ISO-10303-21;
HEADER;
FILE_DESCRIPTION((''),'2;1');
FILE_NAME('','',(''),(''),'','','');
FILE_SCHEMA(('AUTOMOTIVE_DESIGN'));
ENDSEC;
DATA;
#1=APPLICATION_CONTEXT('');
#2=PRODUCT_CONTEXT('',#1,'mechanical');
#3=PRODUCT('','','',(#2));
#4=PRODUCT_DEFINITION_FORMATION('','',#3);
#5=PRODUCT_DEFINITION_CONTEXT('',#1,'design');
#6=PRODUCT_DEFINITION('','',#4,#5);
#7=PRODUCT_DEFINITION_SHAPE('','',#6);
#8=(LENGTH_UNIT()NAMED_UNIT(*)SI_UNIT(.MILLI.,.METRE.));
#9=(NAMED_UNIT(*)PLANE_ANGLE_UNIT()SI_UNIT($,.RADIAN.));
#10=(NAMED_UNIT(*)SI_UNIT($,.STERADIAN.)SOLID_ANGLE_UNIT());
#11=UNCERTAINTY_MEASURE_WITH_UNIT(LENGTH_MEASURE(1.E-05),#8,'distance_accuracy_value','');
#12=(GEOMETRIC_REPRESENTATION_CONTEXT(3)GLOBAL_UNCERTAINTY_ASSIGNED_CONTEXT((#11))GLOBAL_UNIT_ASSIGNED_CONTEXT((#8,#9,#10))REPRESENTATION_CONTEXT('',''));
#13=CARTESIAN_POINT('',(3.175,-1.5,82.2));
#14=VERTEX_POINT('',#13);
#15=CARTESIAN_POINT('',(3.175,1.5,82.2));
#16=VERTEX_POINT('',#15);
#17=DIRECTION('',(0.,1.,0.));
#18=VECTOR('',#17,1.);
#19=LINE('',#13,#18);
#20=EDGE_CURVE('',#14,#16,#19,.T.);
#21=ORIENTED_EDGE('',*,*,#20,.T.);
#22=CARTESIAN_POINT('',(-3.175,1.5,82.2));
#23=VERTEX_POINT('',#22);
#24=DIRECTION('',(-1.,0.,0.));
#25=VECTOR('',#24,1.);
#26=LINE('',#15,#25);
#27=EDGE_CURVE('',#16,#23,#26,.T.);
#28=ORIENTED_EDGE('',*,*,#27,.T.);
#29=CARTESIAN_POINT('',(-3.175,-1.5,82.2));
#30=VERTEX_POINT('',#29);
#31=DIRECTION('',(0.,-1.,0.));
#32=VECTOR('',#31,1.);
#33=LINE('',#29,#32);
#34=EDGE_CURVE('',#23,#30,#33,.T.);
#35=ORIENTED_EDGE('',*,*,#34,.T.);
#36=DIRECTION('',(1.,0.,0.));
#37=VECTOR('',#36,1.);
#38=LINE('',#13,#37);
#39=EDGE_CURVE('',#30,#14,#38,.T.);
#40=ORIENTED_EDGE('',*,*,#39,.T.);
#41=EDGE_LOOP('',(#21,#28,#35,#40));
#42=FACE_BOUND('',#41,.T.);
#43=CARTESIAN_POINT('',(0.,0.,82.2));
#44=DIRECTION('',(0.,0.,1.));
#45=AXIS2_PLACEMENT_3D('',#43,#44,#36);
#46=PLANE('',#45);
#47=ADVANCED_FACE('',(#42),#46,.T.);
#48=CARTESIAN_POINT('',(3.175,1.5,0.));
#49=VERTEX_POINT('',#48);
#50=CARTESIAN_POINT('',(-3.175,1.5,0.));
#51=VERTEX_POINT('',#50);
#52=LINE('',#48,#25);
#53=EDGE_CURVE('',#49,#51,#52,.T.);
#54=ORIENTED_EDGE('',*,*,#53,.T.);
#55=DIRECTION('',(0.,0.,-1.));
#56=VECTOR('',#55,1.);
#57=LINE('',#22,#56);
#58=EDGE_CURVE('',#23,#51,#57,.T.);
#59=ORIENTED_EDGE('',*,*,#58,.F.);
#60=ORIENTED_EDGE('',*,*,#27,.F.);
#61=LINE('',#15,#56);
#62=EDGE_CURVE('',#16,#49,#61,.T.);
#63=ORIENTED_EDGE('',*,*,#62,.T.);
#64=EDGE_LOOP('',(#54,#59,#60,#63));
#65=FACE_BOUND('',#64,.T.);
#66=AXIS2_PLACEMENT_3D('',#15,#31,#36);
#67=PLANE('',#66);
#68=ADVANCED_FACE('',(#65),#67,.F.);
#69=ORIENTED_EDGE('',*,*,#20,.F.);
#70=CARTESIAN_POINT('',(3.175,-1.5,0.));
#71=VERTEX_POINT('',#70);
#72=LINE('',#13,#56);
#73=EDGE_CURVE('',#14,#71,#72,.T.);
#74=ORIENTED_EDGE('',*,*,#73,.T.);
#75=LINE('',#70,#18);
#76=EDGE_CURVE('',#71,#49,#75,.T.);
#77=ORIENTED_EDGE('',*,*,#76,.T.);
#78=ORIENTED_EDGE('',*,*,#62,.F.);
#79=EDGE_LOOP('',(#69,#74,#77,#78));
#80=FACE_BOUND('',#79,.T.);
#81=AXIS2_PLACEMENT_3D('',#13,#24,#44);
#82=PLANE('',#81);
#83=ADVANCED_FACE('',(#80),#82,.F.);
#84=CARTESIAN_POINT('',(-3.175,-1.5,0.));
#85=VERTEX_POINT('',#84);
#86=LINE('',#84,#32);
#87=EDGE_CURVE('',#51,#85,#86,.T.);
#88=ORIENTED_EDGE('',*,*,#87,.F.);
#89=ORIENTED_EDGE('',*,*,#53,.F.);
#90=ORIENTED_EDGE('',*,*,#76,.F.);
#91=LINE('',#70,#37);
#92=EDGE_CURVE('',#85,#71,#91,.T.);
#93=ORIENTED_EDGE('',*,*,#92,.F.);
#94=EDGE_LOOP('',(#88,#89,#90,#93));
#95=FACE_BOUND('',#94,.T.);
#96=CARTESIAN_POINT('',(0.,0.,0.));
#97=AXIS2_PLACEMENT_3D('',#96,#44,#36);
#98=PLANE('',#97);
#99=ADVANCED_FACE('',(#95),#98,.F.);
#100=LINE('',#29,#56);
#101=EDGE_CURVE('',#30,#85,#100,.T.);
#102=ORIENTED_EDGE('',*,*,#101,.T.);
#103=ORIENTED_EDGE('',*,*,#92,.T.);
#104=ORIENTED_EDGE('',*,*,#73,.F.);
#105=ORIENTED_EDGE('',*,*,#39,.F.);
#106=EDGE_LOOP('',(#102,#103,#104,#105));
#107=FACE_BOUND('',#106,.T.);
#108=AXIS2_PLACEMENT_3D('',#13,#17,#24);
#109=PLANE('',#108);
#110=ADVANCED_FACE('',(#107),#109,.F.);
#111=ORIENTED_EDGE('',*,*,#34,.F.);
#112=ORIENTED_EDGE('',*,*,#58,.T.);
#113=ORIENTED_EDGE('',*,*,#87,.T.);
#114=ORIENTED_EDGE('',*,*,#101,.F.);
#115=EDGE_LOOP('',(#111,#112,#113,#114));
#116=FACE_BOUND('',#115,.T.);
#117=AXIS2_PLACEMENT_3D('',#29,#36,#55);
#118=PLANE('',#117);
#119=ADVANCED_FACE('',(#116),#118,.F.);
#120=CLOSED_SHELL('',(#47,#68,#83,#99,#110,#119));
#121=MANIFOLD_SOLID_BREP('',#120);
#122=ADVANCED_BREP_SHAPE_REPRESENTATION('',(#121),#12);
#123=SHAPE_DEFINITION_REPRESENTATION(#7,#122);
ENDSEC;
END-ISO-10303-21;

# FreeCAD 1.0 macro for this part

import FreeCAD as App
import Part
import Sketcher
from FreeCAD import Vector

doc = App.newDocument("Part")
params = doc.addObject("Spreadsheet::Sheet", "Params")
for row, (alias, value) in enumerate([
    ("sketch1_height", "3 mm"),
    ("sketch1_width", "6.35 mm"),
    ("pad1_length", "82.2 mm"),
], start=1):
    params.set(f"A{row}", alias)
    params.set(f"B{row}", "=" + value)
    params.setAlias(f"B{row}", alias)

body = doc.addObject("PartDesign::Body", "Body")

# Sketch on XY plane
sketch1 = doc.addObject("Sketcher::SketchObject", "Sketch")
body.addObject(sketch1)
sketch1.AttachmentSupport = (doc.XY_Plane, [""])
sketch1.MapMode = "FlatFace"
sketch1.addGeometry(Part.LineSegment(Vector(-3.2, 1.5, 0), Vector(-3.2, -1.5, 0)), False)
sketch1.addGeometry(Part.LineSegment(Vector(-3.2, -1.5, 0), Vector(3.2, -1.5, 0)), False)
sketch1.addGeometry(Part.LineSegment(Vector(3.2, -1.5, 0), Vector(3.2, 1.5, 0)), False)
sketch1.addGeometry(Part.LineSegment(Vector(3.2, 1.5, 0), Vector(-3.2, 1.5, 0)), False)
sketch1.addConstraint(Sketcher.Constraint("Coincident", 0, 2, 1, 1))
sketch1.addConstraint(Sketcher.Constraint("Coincident", 1, 2, 2, 1))
sketch1.addConstraint(Sketcher.Constraint("Coincident", 2, 2, 3, 1))
sketch1.addConstraint(Sketcher.Constraint("Coincident", 3, 2, 0, 1))
sketch1.addConstraint(Sketcher.Constraint("Vertical", 0))
sketch1.addConstraint(Sketcher.Constraint("Horizontal", 1))
sketch1.addConstraint(Sketcher.Constraint("Vertical", 2))
sketch1.addConstraint(Sketcher.Constraint("Horizontal", 3))
sketch1.addConstraint(Sketcher.Constraint("Symmetric", 0, 2, 2, 2, -1, 1))
sketch1.addConstraint(Sketcher.Constraint("DistanceY", 0, 2, 0, 1, 3.0))
sketch1.addConstraint(Sketcher.Constraint("DistanceX", 1, 1, 1, 2, 6.35))
sketch1.setExpression("Constraints[9]", "Params.sketch1_height")
sketch1.setExpression("Constraints[10]", "Params.sketch1_width")
pad1 = doc.addObject("PartDesign::Pad", "Pad")
body.addObject(pad1)
pad1.Profile = sketch1
pad1.setExpression("Length", "Params.pad1_length")

doc.recompute()
